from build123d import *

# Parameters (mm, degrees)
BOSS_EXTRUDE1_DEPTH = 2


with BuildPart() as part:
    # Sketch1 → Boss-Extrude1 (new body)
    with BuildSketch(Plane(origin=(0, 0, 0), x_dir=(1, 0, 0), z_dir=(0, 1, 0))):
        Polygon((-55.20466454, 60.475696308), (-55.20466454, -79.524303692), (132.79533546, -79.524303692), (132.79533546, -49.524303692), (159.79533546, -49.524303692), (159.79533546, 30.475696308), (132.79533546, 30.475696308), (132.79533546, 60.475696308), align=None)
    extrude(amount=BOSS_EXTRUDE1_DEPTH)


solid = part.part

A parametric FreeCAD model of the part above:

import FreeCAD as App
import Part
import Sketcher
from FreeCAD import Vector
Q = App.Units.Quantity


def add_polygon(sketch, points):
    """Adds a closed chain of lines whose ends are joined by coincident constraints."""
    first, n = sketch.GeometryCount, len(points)
    for a, b in zip(points, points[1:] + points[:1]):
        sketch.addGeometry(Part.LineSegment(App.Vector(*a, 0), App.Vector(*b, 0)), False)
    for i in range(n):
        sketch.addConstraint(Sketcher.Constraint("Coincident", first + i, 2, first + (i + 1) % n, 1))

doc = App.newDocument("Part")
body = doc.addObject("PartDesign::Body", "Body")

sketch1 = body.newObject("Sketcher::SketchObject", "Sketch")
sketch1.AttachmentSupport = (doc.getObject("XZ_Plane"), [""])
sketch1.MapMode = "FlatFace"
add_polygon(sketch1, [(-55, -60), (-55, 80), (133, 80), (133, 50), (160, 50), (160, -30), (133, -30), (133, -60)])
sketch1.addConstraint(Sketcher.Constraint("Vertical", 0))
sketch1.addConstraint(Sketcher.Constraint("Horizontal", 1))
sketch1.addConstraint(Sketcher.Constraint("Vertical", 2))
sketch1.addConstraint(Sketcher.Constraint("Horizontal", 3))
sketch1.addConstraint(Sketcher.Constraint("Vertical", 4))
sketch1.addConstraint(Sketcher.Constraint("Horizontal", 5))
sketch1.addConstraint(Sketcher.Constraint("Vertical", 6))
sketch1.addConstraint(Sketcher.Constraint("Horizontal", 7))
sketch1.addConstraint(Sketcher.Constraint("Vertical", 2, 2, 5, 2))
sketch1.addConstraint(Sketcher.Constraint("Equal", 2, 6))
sketch1.addConstraint(Sketcher.Constraint("DistanceX", 1, 1, 1, 2, Q("188 mm")))
sketch1.addConstraint(Sketcher.Constraint("DistanceX", 3, 1, 3, 2, Q("27 mm")))
sketch1.addConstraint(Sketcher.Constraint("DistanceY", 0, 1, 0, 2, Q("140 mm")))
sketch1.addConstraint(Sketcher.Constraint("DistanceY", 2, 2, 2, 1, Q("30 mm")))
sketch1.addConstraint(Sketcher.Constraint("DistanceX", 0, 2, -1, 1, Q("55.204665 mm")))
sketch1.addConstraint(Sketcher.Constraint("DistanceY", -1, 1, 0, 2, Q("79.524304 mm")))
pad1 = body.newObject("PartDesign::Pad", "Pad")
pad1.Profile = sketch1
pad1.Length = 2
pad1.Reversed = True

doc.recompute()
